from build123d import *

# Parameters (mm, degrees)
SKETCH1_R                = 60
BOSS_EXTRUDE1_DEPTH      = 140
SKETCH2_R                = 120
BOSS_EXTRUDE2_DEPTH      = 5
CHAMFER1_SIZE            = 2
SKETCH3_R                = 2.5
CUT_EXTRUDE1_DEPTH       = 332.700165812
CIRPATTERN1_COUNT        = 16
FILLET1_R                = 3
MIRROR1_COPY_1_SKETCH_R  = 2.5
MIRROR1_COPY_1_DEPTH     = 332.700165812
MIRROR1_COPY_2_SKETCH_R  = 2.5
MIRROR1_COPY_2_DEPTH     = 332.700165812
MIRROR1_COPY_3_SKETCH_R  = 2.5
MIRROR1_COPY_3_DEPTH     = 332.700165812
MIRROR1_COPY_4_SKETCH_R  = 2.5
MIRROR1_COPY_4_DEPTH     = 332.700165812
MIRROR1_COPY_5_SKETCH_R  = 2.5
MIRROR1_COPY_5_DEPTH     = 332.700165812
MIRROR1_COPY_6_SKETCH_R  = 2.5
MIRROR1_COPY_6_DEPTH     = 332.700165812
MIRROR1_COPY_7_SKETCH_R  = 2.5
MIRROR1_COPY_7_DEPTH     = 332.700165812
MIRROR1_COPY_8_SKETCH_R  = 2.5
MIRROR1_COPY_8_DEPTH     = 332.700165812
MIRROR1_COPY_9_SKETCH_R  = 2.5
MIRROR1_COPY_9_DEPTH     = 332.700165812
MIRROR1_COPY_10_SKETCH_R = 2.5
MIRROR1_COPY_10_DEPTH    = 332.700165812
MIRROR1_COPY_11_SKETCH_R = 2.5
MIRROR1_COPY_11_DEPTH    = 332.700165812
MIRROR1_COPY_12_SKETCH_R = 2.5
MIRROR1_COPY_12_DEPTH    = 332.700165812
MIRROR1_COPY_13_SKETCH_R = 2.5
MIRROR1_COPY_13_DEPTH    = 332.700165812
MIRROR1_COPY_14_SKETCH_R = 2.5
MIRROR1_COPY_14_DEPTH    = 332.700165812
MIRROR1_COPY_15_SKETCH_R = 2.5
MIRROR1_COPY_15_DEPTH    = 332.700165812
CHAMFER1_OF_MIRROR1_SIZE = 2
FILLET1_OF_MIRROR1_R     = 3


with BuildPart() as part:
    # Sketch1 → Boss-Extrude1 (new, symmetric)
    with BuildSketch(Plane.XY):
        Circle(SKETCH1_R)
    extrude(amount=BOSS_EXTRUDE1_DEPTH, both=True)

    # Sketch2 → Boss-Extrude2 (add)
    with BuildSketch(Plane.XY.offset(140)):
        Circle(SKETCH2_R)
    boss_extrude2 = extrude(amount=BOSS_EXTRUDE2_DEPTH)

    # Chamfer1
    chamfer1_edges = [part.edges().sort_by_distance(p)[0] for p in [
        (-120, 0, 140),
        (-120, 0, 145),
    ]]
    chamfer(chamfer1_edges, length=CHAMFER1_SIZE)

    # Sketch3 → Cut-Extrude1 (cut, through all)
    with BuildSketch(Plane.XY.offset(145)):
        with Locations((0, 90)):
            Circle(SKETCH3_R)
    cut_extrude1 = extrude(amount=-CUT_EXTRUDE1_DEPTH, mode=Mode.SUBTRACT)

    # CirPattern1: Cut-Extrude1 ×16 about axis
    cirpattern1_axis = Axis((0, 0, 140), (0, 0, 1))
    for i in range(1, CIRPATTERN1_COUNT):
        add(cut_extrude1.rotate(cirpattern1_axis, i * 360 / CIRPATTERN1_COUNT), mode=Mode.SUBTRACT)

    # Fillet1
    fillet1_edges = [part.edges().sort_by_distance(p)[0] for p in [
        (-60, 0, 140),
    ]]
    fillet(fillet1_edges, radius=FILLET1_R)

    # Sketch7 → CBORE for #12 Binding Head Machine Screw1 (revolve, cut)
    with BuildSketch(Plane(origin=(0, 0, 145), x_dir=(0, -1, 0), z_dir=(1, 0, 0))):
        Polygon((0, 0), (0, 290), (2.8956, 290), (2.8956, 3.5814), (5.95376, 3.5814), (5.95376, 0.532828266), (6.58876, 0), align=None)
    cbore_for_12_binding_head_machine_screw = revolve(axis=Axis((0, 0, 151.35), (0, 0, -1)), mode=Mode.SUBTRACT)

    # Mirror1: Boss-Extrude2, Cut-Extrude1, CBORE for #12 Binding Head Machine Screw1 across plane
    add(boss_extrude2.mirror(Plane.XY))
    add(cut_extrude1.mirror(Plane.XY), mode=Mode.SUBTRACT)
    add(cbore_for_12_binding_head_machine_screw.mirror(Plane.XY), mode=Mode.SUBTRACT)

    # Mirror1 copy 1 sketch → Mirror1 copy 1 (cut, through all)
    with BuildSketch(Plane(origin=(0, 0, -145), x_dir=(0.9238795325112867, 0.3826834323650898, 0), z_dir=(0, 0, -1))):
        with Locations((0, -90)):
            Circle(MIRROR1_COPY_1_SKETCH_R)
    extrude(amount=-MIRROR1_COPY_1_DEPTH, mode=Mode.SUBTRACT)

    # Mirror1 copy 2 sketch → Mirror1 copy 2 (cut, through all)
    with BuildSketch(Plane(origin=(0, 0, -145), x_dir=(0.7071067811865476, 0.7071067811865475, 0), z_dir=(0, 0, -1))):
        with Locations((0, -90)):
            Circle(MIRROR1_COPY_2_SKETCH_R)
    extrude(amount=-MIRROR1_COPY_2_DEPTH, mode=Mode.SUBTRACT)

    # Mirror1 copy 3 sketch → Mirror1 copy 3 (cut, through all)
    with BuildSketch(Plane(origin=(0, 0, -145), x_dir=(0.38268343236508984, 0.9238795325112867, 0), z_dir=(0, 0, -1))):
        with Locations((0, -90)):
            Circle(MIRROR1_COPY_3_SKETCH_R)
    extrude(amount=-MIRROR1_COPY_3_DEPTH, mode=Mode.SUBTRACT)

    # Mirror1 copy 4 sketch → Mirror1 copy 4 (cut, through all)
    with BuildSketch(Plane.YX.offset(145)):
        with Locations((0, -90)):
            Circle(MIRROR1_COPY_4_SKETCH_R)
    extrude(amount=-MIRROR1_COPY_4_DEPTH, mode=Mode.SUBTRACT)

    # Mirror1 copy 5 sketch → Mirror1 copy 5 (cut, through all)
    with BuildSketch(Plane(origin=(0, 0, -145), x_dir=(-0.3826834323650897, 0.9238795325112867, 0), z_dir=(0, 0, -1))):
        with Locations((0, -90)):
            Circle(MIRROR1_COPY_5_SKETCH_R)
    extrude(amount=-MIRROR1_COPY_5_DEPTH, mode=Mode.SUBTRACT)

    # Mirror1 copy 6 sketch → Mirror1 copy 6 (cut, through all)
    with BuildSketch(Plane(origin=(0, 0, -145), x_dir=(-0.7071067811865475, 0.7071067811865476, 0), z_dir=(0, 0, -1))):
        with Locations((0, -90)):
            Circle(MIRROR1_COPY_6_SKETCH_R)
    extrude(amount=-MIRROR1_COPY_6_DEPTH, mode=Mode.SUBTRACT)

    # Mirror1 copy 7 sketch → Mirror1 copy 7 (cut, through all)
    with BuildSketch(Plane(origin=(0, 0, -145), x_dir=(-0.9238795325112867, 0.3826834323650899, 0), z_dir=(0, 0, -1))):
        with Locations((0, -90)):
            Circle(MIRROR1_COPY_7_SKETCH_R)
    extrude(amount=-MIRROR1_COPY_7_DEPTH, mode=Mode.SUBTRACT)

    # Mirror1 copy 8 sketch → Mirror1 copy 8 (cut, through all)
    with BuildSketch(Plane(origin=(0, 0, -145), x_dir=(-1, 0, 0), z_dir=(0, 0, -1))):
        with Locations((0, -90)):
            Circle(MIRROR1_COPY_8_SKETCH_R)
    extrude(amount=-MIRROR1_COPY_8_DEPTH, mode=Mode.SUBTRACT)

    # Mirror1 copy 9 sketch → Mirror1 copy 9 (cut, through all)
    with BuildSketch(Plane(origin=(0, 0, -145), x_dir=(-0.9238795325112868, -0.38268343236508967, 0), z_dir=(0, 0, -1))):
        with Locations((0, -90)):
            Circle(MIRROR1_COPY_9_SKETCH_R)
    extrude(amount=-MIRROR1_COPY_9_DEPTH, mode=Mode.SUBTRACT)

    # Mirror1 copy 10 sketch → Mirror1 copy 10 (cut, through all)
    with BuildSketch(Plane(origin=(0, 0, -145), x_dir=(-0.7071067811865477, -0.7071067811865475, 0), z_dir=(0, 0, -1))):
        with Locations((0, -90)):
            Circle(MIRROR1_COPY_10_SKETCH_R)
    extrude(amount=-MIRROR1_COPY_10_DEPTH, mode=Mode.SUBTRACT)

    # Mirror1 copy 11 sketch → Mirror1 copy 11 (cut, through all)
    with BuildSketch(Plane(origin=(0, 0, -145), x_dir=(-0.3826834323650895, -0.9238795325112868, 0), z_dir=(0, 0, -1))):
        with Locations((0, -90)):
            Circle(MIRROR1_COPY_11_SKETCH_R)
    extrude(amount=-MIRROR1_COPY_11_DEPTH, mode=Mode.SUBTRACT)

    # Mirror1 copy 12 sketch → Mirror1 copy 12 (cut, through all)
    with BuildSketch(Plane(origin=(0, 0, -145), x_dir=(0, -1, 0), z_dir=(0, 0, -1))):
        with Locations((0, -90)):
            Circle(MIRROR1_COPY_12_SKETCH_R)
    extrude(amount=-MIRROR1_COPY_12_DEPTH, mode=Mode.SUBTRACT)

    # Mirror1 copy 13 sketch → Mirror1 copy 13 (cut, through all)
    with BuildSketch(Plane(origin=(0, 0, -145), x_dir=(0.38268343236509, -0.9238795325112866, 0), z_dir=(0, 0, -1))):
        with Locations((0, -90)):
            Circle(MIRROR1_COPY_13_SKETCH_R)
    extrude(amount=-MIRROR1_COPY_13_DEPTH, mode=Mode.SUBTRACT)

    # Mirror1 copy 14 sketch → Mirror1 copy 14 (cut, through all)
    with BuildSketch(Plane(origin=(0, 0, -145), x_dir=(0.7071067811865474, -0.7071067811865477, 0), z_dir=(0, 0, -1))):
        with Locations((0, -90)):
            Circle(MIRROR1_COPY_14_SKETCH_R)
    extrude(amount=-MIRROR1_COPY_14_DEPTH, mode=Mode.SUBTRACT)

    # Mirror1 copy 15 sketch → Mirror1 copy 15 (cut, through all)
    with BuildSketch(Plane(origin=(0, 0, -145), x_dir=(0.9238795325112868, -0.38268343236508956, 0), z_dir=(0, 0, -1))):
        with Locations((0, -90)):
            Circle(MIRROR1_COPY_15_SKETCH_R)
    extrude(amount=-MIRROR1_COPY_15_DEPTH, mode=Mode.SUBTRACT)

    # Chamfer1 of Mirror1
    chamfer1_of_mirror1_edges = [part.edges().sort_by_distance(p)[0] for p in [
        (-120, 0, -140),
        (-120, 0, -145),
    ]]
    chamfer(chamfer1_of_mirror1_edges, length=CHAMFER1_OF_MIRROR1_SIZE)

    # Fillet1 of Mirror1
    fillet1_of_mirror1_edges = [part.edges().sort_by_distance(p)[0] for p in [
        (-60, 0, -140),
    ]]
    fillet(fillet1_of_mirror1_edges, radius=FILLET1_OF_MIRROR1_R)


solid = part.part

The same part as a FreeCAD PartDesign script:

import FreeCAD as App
import Part
import Sketcher

V = App.Vector
Q = App.Units.Quantity


def edges_at(feature, points):
    """Names of the edges that pass closest to the given points."""
    edges = feature.Shape.Edges
    near = lambda p: min(range(len(edges)), key=lambda i: edges[i].distToShape(Part.Vertex(*p))[0])
    return sorted({f"Edge{near(p) + 1}" for p in points})

doc = App.newDocument("Part")
body = doc.addObject("PartDesign::Body", "Body")

# Sketch on XY plane
sketch1 = body.newObject("Sketcher::SketchObject", "Sketch")
sketch1.AttachmentSupport = (doc.getObject("XY_Plane"), [""])
sketch1.MapMode = "FlatFace"
sketch1.addGeometry(Part.Circle(V(0, 0, 0), V(0, 0, 1), 60), False)
sketch1.addConstraint([
    Sketcher.Constraint("Coincident", 0, 3, -1, 1),
    Sketcher.Constraint("Diameter", 0, Q("120 mm")),
])
pad1 = body.newObject("PartDesign::Pad", "Pad")
pad1.Profile = sketch1
pad1.Length = 280
pad1.Midplane = True

# Sketch on XY plane
sketch2 = body.newObject("Sketcher::SketchObject", "Sketch001")
sketch2.AttachmentSupport = (doc.getObject("XY_Plane"), [""])
sketch2.MapMode = "FlatFace"
sketch2.AttachmentOffset = App.Placement(V(0, 0, 140), App.Rotation())
sketch2.addGeometry(Part.Circle(V(0, 0, 0), V(0, 0, 1), 120), False)
sketch2.addConstraint([
    Sketcher.Constraint("Coincident", 0, 3, -1, 1),
    Sketcher.Constraint("Diameter", 0, Q("240 mm")),
])
pad2 = body.newObject("PartDesign::Pad", "Pad001")
pad2.Profile = sketch2
pad2.Length = 5
doc.recompute()

chamfer = body.newObject("PartDesign::Chamfer", "Chamfer")
chamfer.Base = (pad2, edges_at(pad2, [(-120, 0, 140), (-120, 0, 145)]))
chamfer.Size = 2

# Sketch on XY plane
sketch3 = body.newObject("Sketcher::SketchObject", "Sketch002")
sketch3.AttachmentSupport = (doc.getObject("XY_Plane"), [""])
sketch3.MapMode = "FlatFace"
sketch3.AttachmentOffset = App.Placement(V(0, 0, 145), App.Rotation())
sketch3.addGeometry(Part.Circle(V(0, 90, 0), V(0, 0, 1), 2.5), False)
sketch3.addConstraint([
    Sketcher.Constraint("PointOnObject", 0, 3, -2),
    Sketcher.Constraint("Diameter", 0, Q("5 mm")),
    Sketcher.Constraint("DistanceY", -1, 1, 0, 3, Q("90 mm")),
])
pocket1 = body.newObject("PartDesign::Pocket", "Pocket")
pocket1.Profile = sketch3
pocket1.Type = "ThroughAll"
doc.recompute()

polarpattern = body.newObject("PartDesign::PolarPattern", "PolarPattern")
polarpattern.Originals = [pocket1]
polarpattern.Axis = (doc.getObject("Z_Axis"), [""])
polarpattern.Angle = 360
polarpattern.Occurrences = 16
body.Tip = polarpattern
doc.recompute()

fillet = body.newObject("PartDesign::Fillet", "Fillet")
fillet.Base = (polarpattern, edges_at(polarpattern, [(-60, 0, 140)]))
fillet.Radius = 3

# Sketch on YZ plane
sketch4 = body.newObject("Sketcher::SketchObject", "Sketch003")
sketch4.AttachmentSupport = (doc.getObject("YZ_Plane"), [""])
sketch4.MapMode = "FlatFace"
sketch4.addGeometry([
    Part.LineSegment(V(0, -145, 0), V(0, 145, 0)),  # 0
    Part.LineSegment(V(0, 145, 0), V(-6.6, 145, 0)),  # 1
    Part.LineSegment(V(-6.6, 145, 0), V(-6, 144.5, 0)),  # 2
    Part.LineSegment(V(-6, 144.5, 0), V(-6, 141.4, 0)),  # 3
    Part.LineSegment(V(-6, 141.4, 0), V(-2.9, 141.4, 0)),  # 4
    Part.LineSegment(V(-2.9, 141.4, 0), V(-2.9, -145, 0)),  # 5
    Part.LineSegment(V(-2.9, -145, 0), V(0, -145, 0)),  # 6
], False)
sketch4.addConstraint([
    Sketcher.Constraint("Coincident", 0, 2, 1, 1),
    Sketcher.Constraint("Coincident", 1, 2, 2, 1),
    Sketcher.Constraint("Coincident", 2, 2, 3, 1),
    Sketcher.Constraint("Coincident", 3, 2, 4, 1),
    Sketcher.Constraint("Coincident", 4, 2, 5, 1),
    Sketcher.Constraint("Coincident", 5, 2, 6, 1),
    Sketcher.Constraint("Coincident", 6, 2, 0, 1),
    Sketcher.Constraint("Vertical", 0),
    Sketcher.Constraint("Horizontal", 1),
    Sketcher.Constraint("Vertical", 3),
    Sketcher.Constraint("Horizontal", 4),
    Sketcher.Constraint("Vertical", 5),
    Sketcher.Constraint("Horizontal", 6),
    Sketcher.Constraint("Symmetric", 0, 2, 6, 2, -1, 1),
    Sketcher.Constraint("DistanceY", 0, 1, 0, 2, Q("290 mm")),
    Sketcher.Constraint("Angle", 2, Q("-40 deg")),
    Sketcher.Constraint("DistanceX", 6, 1, 6, 2, Q("2.8956 mm")),
    Sketcher.Constraint("DistanceY", 5, 2, 5, 1, Q("286.4186 mm")),
    Sketcher.Constraint("DistanceX", 1, 2, 2, 2, Q("0.635 mm")),
    Sketcher.Constraint("DistanceX", 1, 2, 1, 1, Q("6.58876 mm")),
])
groove = body.newObject("PartDesign::Groove", "Groove")
groove.Profile = sketch4
groove.ReferenceAxis = (sketch4, ["V_Axis"])
groove.Angle = 360
doc.recompute()

mirrored = body.newObject("PartDesign::Mirrored", "Mirrored")
mirrored.Originals = [pad2, pocket1, groove]
mirrored.MirrorPlane = (doc.getObject("XY_Plane"), [""])
body.Tip = mirrored

# Sketch on XY plane
sketch5 = body.newObject("Sketcher::SketchObject", "Sketch004")
sketch5.AttachmentSupport = (doc.getObject("XY_Plane"), [""])
sketch5.MapMode = "FlatFace"
sketch5.AttachmentOffset = App.Placement(V(0, 0, -145), App.Rotation())
sketch5.addGeometry(Part.Circle(V(-34.4, 83.1, 0), V(0, 0, 1), 2.5), False)
sketch5.addConstraint([
    Sketcher.Constraint("Diameter", 0, Q("5 mm")),
    Sketcher.Constraint("DistanceX", 0, 3, -1, 1, Q("34.441509 mm")),
    Sketcher.Constraint("DistanceY", -1, 1, 0, 3, Q("83.149158 mm")),
])
pocket2 = body.newObject("PartDesign::Pocket", "Pocket001")
pocket2.Profile = sketch5
pocket2.Type = "ThroughAll"
pocket2.Reversed = True

# Sketch on XY plane
sketch6 = body.newObject("Sketcher::SketchObject", "Sketch005")
sketch6.AttachmentSupport = (doc.getObject("XY_Plane"), [""])
sketch6.MapMode = "FlatFace"
sketch6.AttachmentOffset = App.Placement(V(0, 0, -145), App.Rotation())
sketch6.addGeometry(Part.Circle(V(-63.6, 63.6, 0), V(0, 0, 1), 2.5), False)
sketch6.addConstraint([
    Sketcher.Constraint("Diameter", 0, Q("5 mm")),
    Sketcher.Constraint("DistanceX", 0, 3, -1, 1, Q("63.63961 mm")),
    Sketcher.Constraint("DistanceY", -1, 1, 0, 3, Q("63.63961 mm")),
])
pocket3 = body.newObject("PartDesign::Pocket", "Pocket002")
pocket3.Profile = sketch6
pocket3.Type = "ThroughAll"
pocket3.Reversed = True

# Sketch on XY plane
sketch7 = body.newObject("Sketcher::SketchObject", "Sketch006")
sketch7.AttachmentSupport = (doc.getObject("XY_Plane"), [""])
sketch7.MapMode = "FlatFace"
sketch7.AttachmentOffset = App.Placement(V(0, 0, -145), App.Rotation())
sketch7.addGeometry(Part.Circle(V(-83.1, 34.4, 0), V(0, 0, 1), 2.5), False)
sketch7.addConstraint([
    Sketcher.Constraint("Diameter", 0, Q("5 mm")),
    Sketcher.Constraint("DistanceY", -1, 1, 0, 3, Q("34.441509 mm")),
    Sketcher.Constraint("DistanceX", 0, 3, -1, 1, Q("83.149158 mm")),
])
pocket4 = body.newObject("PartDesign::Pocket", "Pocket003")
pocket4.Profile = sketch7
pocket4.Type = "ThroughAll"
pocket4.Reversed = True

# Sketch on XY plane
sketch8 = body.newObject("Sketcher::SketchObject", "Sketch007")
sketch8.AttachmentSupport = (doc.getObject("XY_Plane"), [""])
sketch8.MapMode = "FlatFace"
sketch8.AttachmentOffset = App.Placement(V(0, 0, -145), App.Rotation())
sketch8.addGeometry(Part.Circle(V(-90, 0, 0), V(0, 0, 1), 2.5), False)
sketch8.addConstraint([
    Sketcher.Constraint("PointOnObject", 0, 3, -1),
    Sketcher.Constraint("Diameter", 0, Q("5 mm")),
    Sketcher.Constraint("DistanceX", 0, 3, -1, 1, Q("90 mm")),
])
pocket5 = body.newObject("PartDesign::Pocket", "Pocket004")
pocket5.Profile = sketch8
pocket5.Type = "ThroughAll"
pocket5.Reversed = True

# Sketch on XY plane
sketch9 = body.newObject("Sketcher::SketchObject", "Sketch008")
sketch9.AttachmentSupport = (doc.getObject("XY_Plane"), [""])
sketch9.MapMode = "FlatFace"
sketch9.AttachmentOffset = App.Placement(V(0, 0, -145), App.Rotation())
sketch9.addGeometry(Part.Circle(V(-83.1, -34.4, 0), V(0, 0, 1), 2.5), False)
sketch9.addConstraint([
    Sketcher.Constraint("Diameter", 0, Q("5 mm")),
    Sketcher.Constraint("DistanceY", 0, 3, -1, 1, Q("34.441509 mm")),
    Sketcher.Constraint("DistanceX", 0, 3, -1, 1, Q("83.149158 mm")),
])
pocket6 = body.newObject("PartDesign::Pocket", "Pocket005")
pocket6.Profile = sketch9
pocket6.Type = "ThroughAll"
pocket6.Reversed = True

# Sketch on XY plane
sketch10 = body.newObject("Sketcher::SketchObject", "Sketch009")
sketch10.AttachmentSupport = (doc.getObject("XY_Plane"), [""])
sketch10.MapMode = "FlatFace"
sketch10.AttachmentOffset = App.Placement(V(0, 0, -145), App.Rotation())
sketch10.addGeometry(Part.Circle(V(-63.6, -63.6, 0), V(0, 0, 1), 2.5), False)
sketch10.addConstraint([
    Sketcher.Constraint("Diameter", 0, Q("5 mm")),
    Sketcher.Constraint("DistanceX", 0, 3, -1, 1, Q("63.63961 mm")),
    Sketcher.Constraint("DistanceY", 0, 3, -1, 1, Q("63.63961 mm")),
])
pocket7 = body.newObject("PartDesign::Pocket", "Pocket006")
pocket7.Profile = sketch10
pocket7.Type = "ThroughAll"
pocket7.Reversed = True

# Sketch on XY plane
sketch11 = body.newObject("Sketcher::SketchObject", "Sketch010")
sketch11.AttachmentSupport = (doc.getObject("XY_Plane"), [""])
sketch11.MapMode = "FlatFace"
sketch11.AttachmentOffset = App.Placement(V(0, 0, -145), App.Rotation())
sketch11.addGeometry(Part.Circle(V(-34.4, -83.1, 0), V(0, 0, 1), 2.5), False)
sketch11.addConstraint([
    Sketcher.Constraint("Diameter", 0, Q("5 mm")),
    Sketcher.Constraint("DistanceX", 0, 3, -1, 1, Q("34.441509 mm")),
    Sketcher.Constraint("DistanceY", 0, 3, -1, 1, Q("83.149158 mm")),
])
pocket8 = body.newObject("PartDesign::Pocket", "Pocket007")
pocket8.Profile = sketch11
pocket8.Type = "ThroughAll"
pocket8.Reversed = True

# Sketch on XY plane
sketch12 = body.newObject("Sketcher::SketchObject", "Sketch011")
sketch12.AttachmentSupport = (doc.getObject("XY_Plane"), [""])
sketch12.MapMode = "FlatFace"
sketch12.AttachmentOffset = App.Placement(V(0, 0, -145), App.Rotation())
sketch12.addGeometry(Part.Circle(V(0, -90, 0), V(0, 0, 1), 2.5), False)
sketch12.addConstraint([
    Sketcher.Constraint("PointOnObject", 0, 3, -2),
    Sketcher.Constraint("Diameter", 0, Q("5 mm")),
    Sketcher.Constraint("DistanceY", 0, 3, -1, 1, Q("90 mm")),
])
pocket9 = body.newObject("PartDesign::Pocket", "Pocket008")
pocket9.Profile = sketch12
pocket9.Type = "ThroughAll"
pocket9.Reversed = True

# Sketch on XY plane
sketch13 = body.newObject("Sketcher::SketchObject", "Sketch012")
sketch13.AttachmentSupport = (doc.getObject("XY_Plane"), [""])
sketch13.MapMode = "FlatFace"
sketch13.AttachmentOffset = App.Placement(V(0, 0, -145), App.Rotation())
sketch13.addGeometry(Part.Circle(V(34.4, -83.1, 0), V(0, 0, 1), 2.5), False)
sketch13.addConstraint([
    Sketcher.Constraint("Diameter", 0, Q("5 mm")),
    Sketcher.Constraint("DistanceX", -1, 1, 0, 3, Q("34.441509 mm")),
    Sketcher.Constraint("DistanceY", 0, 3, -1, 1, Q("83.149158 mm")),
])
pocket10 = body.newObject("PartDesign::Pocket", "Pocket009")
pocket10.Profile = sketch13
pocket10.Type = "ThroughAll"
pocket10.Reversed = True

# Sketch on XY plane
sketch14 = body.newObject("Sketcher::SketchObject", "Sketch013")
sketch14.AttachmentSupport = (doc.getObject("XY_Plane"), [""])
sketch14.MapMode = "FlatFace"
sketch14.AttachmentOffset = App.Placement(V(0, 0, -145), App.Rotation())
sketch14.addGeometry(Part.Circle(V(63.6, -63.6, 0), V(0, 0, 1), 2.5), False)
sketch14.addConstraint([
    Sketcher.Constraint("Diameter", 0, Q("5 mm")),
    Sketcher.Constraint("DistanceX", -1, 1, 0, 3, Q("63.63961 mm")),
    Sketcher.Constraint("DistanceY", 0, 3, -1, 1, Q("63.63961 mm")),
])
pocket11 = body.newObject("PartDesign::Pocket", "Pocket010")
pocket11.Profile = sketch14
pocket11.Type = "ThroughAll"
pocket11.Reversed = True

# Sketch on XY plane
sketch15 = body.newObject("Sketcher::SketchObject", "Sketch014")
sketch15.AttachmentSupport = (doc.getObject("XY_Plane"), [""])
sketch15.MapMode = "FlatFace"
sketch15.AttachmentOffset = App.Placement(V(0, 0, -145), App.Rotation())
sketch15.addGeometry(Part.Circle(V(83.1, -34.4, 0), V(0, 0, 1), 2.5), False)
sketch15.addConstraint([
    Sketcher.Constraint("Diameter", 0, Q("5 mm")),
    Sketcher.Constraint("DistanceY", 0, 3, -1, 1, Q("34.441509 mm")),
    Sketcher.Constraint("DistanceX", -1, 1, 0, 3, Q("83.149158 mm")),
])
pocket12 = body.newObject("PartDesign::Pocket", "Pocket011")
pocket12.Profile = sketch15
pocket12.Type = "ThroughAll"
pocket12.Reversed = True

# Sketch on XY plane
sketch16 = body.newObject("Sketcher::SketchObject", "Sketch015")
sketch16.AttachmentSupport = (doc.getObject("XY_Plane"), [""])
sketch16.MapMode = "FlatFace"
sketch16.AttachmentOffset = App.Placement(V(0, 0, -145), App.Rotation())
sketch16.addGeometry(Part.Circle(V(90, 0, 0), V(0, 0, 1), 2.5), False)
sketch16.addConstraint([
    Sketcher.Constraint("PointOnObject", 0, 3, -1),
    Sketcher.Constraint("Diameter", 0, Q("5 mm")),
    Sketcher.Constraint("DistanceX", -1, 1, 0, 3, Q("90 mm")),
])
pocket13 = body.newObject("PartDesign::Pocket", "Pocket012")
pocket13.Profile = sketch16
pocket13.Type = "ThroughAll"
pocket13.Reversed = True

# Sketch on XY plane
sketch17 = body.newObject("Sketcher::SketchObject", "Sketch016")
sketch17.AttachmentSupport = (doc.getObject("XY_Plane"), [""])
sketch17.MapMode = "FlatFace"
sketch17.AttachmentOffset = App.Placement(V(0, 0, -145), App.Rotation())
sketch17.addGeometry(Part.Circle(V(83.1, 34.4, 0), V(0, 0, 1), 2.5), False)
sketch17.addConstraint([
    Sketcher.Constraint("Diameter", 0, Q("5 mm")),
    Sketcher.Constraint("DistanceY", -1, 1, 0, 3, Q("34.441509 mm")),
    Sketcher.Constraint("DistanceX", -1, 1, 0, 3, Q("83.149158 mm")),
])
pocket14 = body.newObject("PartDesign::Pocket", "Pocket013")
pocket14.Profile = sketch17
pocket14.Type = "ThroughAll"
pocket14.Reversed = True

# Sketch on XY plane
sketch18 = body.newObject("Sketcher::SketchObject", "Sketch017")
sketch18.AttachmentSupport = (doc.getObject("XY_Plane"), [""])
sketch18.MapMode = "FlatFace"
sketch18.AttachmentOffset = App.Placement(V(0, 0, -145), App.Rotation())
sketch18.addGeometry(Part.Circle(V(63.6, 63.6, 0), V(0, 0, 1), 2.5), False)
sketch18.addConstraint([
    Sketcher.Constraint("Diameter", 0, Q("5 mm")),
    Sketcher.Constraint("DistanceX", -1, 1, 0, 3, Q("63.63961 mm")),
    Sketcher.Constraint("DistanceY", -1, 1, 0, 3, Q("63.63961 mm")),
])
pocket15 = body.newObject("PartDesign::Pocket", "Pocket014")
pocket15.Profile = sketch18
pocket15.Type = "ThroughAll"
pocket15.Reversed = True

# Sketch on XY plane
sketch19 = body.newObject("Sketcher::SketchObject", "Sketch018")
sketch19.AttachmentSupport = (doc.getObject("XY_Plane"), [""])
sketch19.MapMode = "FlatFace"
sketch19.AttachmentOffset = App.Placement(V(0, 0, -145), App.Rotation())
sketch19.addGeometry(Part.Circle(V(34.4, 83.1, 0), V(0, 0, 1), 2.5), False)
sketch19.addConstraint([
    Sketcher.Constraint("Diameter", 0, Q("5 mm")),
    Sketcher.Constraint("DistanceX", -1, 1, 0, 3, Q("34.441509 mm")),
    Sketcher.Constraint("DistanceY", -1, 1, 0, 3, Q("83.149158 mm")),
])
pocket16 = body.newObject("PartDesign::Pocket", "Pocket015")
pocket16.Profile = sketch19
pocket16.Type = "ThroughAll"
pocket16.Reversed = True
doc.recompute()

chamfer2 = body.newObject("PartDesign::Chamfer", "Chamfer001")
chamfer2.Base = (pocket16, edges_at(pocket16, [(-120, 0, -140), (-120, 0, -145)]))
chamfer2.Size = 2
doc.recompute()

fillet2 = body.newObject("PartDesign::Fillet", "Fillet001")
fillet2.Base = (chamfer2, edges_at(chamfer2, [(-60, 0, -140)]))
fillet2.Radius = 3

doc.recompute()
